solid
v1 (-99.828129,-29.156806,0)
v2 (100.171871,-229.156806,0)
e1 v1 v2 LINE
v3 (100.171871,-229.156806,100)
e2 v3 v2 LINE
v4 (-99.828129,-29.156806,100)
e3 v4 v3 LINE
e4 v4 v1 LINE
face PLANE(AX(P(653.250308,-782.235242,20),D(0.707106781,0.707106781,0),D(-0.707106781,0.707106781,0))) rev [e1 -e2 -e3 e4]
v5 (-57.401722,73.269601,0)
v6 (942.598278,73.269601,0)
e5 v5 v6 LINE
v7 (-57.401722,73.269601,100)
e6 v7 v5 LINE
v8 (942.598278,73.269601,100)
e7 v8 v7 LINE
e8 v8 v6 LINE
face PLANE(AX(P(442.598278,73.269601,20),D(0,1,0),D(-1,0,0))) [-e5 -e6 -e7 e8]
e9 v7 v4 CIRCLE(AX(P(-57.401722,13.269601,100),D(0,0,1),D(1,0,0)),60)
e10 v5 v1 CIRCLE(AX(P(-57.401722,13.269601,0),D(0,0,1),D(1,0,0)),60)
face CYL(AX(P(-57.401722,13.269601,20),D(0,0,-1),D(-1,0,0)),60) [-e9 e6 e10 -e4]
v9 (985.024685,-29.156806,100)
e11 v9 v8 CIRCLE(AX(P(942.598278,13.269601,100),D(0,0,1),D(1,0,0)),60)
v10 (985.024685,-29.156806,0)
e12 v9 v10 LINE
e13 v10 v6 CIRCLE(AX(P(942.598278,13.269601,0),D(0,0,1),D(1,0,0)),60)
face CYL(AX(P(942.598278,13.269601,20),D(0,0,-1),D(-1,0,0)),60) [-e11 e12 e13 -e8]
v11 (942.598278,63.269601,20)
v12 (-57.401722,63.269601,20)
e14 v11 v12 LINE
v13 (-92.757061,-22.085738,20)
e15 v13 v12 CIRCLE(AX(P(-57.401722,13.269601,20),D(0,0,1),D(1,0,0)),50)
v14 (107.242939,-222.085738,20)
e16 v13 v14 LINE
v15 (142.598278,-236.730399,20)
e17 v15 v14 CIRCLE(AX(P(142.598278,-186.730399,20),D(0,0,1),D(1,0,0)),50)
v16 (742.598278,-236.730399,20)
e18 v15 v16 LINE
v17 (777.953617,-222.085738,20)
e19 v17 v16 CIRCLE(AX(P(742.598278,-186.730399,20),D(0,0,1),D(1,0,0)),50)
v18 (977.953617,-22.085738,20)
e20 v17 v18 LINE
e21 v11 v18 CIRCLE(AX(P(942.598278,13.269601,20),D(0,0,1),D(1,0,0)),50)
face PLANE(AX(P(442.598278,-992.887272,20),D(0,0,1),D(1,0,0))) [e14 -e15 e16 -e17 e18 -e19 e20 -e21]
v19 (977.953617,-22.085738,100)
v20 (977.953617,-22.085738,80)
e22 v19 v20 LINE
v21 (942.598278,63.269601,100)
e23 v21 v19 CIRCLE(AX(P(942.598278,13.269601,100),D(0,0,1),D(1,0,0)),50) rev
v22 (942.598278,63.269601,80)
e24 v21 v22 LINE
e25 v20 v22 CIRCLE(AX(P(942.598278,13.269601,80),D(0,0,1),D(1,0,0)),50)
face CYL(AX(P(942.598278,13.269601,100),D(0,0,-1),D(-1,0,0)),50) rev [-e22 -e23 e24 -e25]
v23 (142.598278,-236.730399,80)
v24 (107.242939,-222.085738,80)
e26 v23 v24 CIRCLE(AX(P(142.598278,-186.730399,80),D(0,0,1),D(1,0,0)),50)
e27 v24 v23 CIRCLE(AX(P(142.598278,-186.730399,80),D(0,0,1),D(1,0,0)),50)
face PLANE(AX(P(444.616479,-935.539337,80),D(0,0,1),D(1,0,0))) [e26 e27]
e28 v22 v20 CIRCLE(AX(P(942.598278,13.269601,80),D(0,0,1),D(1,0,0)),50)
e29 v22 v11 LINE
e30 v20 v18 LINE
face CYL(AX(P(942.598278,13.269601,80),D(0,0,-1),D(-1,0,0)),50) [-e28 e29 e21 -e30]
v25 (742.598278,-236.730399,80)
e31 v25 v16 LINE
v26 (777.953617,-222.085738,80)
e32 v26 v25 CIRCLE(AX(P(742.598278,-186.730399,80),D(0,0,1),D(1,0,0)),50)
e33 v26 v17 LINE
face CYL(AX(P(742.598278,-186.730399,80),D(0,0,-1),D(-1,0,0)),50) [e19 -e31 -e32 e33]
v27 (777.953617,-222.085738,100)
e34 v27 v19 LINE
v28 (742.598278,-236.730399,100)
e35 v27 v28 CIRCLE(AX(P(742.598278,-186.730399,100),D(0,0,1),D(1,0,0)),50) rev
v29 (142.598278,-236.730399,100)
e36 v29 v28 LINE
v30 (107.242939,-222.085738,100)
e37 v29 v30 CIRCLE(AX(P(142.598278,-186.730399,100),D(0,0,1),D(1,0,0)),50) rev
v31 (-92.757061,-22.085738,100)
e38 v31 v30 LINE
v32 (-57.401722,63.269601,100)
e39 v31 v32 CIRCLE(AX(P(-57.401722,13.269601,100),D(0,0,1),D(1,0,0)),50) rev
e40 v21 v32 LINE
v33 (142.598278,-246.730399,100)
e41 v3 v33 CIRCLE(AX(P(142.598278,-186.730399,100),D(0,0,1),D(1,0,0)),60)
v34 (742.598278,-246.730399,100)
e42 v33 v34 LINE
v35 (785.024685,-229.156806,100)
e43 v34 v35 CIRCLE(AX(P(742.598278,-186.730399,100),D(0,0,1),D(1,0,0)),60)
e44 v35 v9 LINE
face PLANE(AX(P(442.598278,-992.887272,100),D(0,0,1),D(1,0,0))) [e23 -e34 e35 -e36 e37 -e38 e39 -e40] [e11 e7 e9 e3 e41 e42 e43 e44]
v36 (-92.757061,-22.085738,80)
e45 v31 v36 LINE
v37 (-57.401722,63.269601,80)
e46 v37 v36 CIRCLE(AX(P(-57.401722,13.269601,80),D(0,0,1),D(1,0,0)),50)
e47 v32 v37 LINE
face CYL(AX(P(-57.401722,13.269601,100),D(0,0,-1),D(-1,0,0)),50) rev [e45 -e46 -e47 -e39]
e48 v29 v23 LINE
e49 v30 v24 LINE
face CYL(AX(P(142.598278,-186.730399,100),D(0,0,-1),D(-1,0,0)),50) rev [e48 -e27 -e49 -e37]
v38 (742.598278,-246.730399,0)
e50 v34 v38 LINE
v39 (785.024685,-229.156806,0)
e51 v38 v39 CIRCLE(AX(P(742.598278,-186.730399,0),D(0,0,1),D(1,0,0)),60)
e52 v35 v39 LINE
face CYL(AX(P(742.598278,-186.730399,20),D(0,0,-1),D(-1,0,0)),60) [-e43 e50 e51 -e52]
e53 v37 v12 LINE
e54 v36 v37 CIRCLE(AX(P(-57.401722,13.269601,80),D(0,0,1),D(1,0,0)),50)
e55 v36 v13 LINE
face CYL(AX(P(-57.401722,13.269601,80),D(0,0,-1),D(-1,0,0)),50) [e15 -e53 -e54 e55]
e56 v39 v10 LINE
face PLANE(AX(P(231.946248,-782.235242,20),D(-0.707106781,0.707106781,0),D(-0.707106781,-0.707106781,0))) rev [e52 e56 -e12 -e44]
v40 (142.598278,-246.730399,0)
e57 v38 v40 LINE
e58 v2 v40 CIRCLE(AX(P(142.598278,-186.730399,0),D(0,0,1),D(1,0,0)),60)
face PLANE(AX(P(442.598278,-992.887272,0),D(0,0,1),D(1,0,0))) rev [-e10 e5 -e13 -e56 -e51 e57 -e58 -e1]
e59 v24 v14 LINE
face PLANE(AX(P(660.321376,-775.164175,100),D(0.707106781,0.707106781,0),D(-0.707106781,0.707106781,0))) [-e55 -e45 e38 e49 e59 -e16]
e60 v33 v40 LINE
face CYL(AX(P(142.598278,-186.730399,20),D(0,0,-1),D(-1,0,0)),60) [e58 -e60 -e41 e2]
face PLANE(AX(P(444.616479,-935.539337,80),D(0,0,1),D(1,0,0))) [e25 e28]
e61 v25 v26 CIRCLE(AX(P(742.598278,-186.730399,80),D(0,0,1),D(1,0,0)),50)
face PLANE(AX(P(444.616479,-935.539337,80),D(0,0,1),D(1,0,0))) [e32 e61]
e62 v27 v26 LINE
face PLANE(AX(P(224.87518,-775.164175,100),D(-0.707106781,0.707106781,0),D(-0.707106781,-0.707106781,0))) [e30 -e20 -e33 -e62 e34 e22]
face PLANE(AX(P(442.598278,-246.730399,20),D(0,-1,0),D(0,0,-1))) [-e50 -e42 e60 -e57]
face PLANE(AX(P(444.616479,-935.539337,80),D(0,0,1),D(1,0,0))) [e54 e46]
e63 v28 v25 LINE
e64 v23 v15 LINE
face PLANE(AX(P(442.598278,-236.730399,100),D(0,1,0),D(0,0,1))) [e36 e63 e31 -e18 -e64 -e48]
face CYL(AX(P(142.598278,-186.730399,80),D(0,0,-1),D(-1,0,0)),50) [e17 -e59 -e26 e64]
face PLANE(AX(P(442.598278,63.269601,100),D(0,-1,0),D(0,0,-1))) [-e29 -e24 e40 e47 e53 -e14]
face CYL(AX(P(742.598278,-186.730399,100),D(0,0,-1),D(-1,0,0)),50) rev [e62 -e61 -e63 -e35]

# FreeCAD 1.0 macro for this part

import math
import FreeCAD as App
import Part
import Sketcher
Q = App.Units.Quantity

doc = App.newDocument("Part")
params = doc.addObject("Spreadsheet::Sheet", "Params")
for row, (alias, value) in enumerate([
    ("sketch1_radius", "60 mm"),
    ("sketch1_width", "1000 mm"),
    ("sketch1_width2", "600 mm"),
    ("pad1_length", "20 mm"),
    ("sketch2_diameter", "100 mm"),
    ("pad2_length", "60 mm"),
    ("sketch3_radius", "60 mm"),
    ("sketch3_radius2", "50 mm"),
    ("sketch3_width", "1000 mm"),
    ("sketch3_width2", "600 mm"),
    ("pad3_length", "80 mm"),
], start=1):
    params.set(f"A{row}", alias)
    params.set(f"B{row}", "=" + value)
    params.setAlias(f"B{row}", alias)

body = doc.addObject("PartDesign::Body", "Body")

# Sketch on XY plane
sketch1 = body.newObject("Sketcher::SketchObject", "Sketch")
sketch1.AttachmentSupport = (doc.getObject("XY_Plane"), [""])
sketch1.MapMode = "FlatFace"
sketch1.addGeometry([
    Part.LineSegment(App.Vector(943, 73, 0), App.Vector(-57, 73, 0)),  # 0
    Part.ArcOfCircle(Part.Circle(App.Vector(-57, 13, 0), App.Vector(0, 0, 1), 60), math.radians(90), math.radians(225)),  # 1
    Part.LineSegment(App.Vector(-100, -29, 0), App.Vector(100, -229, 0)),  # 2
    Part.ArcOfCircle(Part.Circle(App.Vector(143, -187, 0), App.Vector(0, 0, 1), 60), math.radians(-135), math.radians(-90)),  # 3
    Part.LineSegment(App.Vector(143, -247, 0), App.Vector(743, -247, 0)),  # 4
    Part.ArcOfCircle(Part.Circle(App.Vector(743, -187, 0), App.Vector(0, 0, 1), 60), math.radians(-90), math.radians(-45)),  # 5
    Part.LineSegment(App.Vector(785, -229, 0), App.Vector(827, -187, 0)),  # 6
    Part.LineSegment(App.Vector(827, -187, 0), App.Vector(943, -72, 0)),  # 7
    Part.LineSegment(App.Vector(943, -72, 0), App.Vector(985, -29, 0)),  # 8
    Part.ArcOfCircle(Part.Circle(App.Vector(943, 13, 0), App.Vector(0, 0, 1), 60), math.radians(-45), math.radians(0)),  # 9
    Part.ArcOfCircle(Part.Circle(App.Vector(943, 13, 0), App.Vector(0, 0, 1), 60), math.radians(0), math.radians(90)),  # 10
], False)
sketch1.addConstraint([
    Sketcher.Constraint("Tangent", 0, 2, 1, 1),
    Sketcher.Constraint("Tangent", 1, 2, 2, 1),
    Sketcher.Constraint("Tangent", 2, 2, 3, 1),
    Sketcher.Constraint("Tangent", 3, 2, 4, 1),
    Sketcher.Constraint("Tangent", 4, 2, 5, 1),
    Sketcher.Constraint("Tangent", 5, 2, 6, 1),
    Sketcher.Constraint("Coincident", 6, 2, 7, 1),
    Sketcher.Constraint("Coincident", 7, 2, 8, 1),
    Sketcher.Constraint("Tangent", 8, 2, 9, 1),
    Sketcher.Constraint("Tangent", 9, 2, 10, 1),
    Sketcher.Constraint("Tangent", 10, 2, 0, 1),
    Sketcher.Constraint("Horizontal", 0),
    Sketcher.Constraint("Horizontal", 4),
    Sketcher.Constraint("Equal", 1, 3),
    Sketcher.Constraint("Equal", 3, 5),
    Sketcher.Constraint("Equal", 5, 9),
    Sketcher.Constraint("Equal", 9, 10),
    Sketcher.Constraint("Perpendicular", 2, 6),
    Sketcher.Constraint("Parallel", 6, 7),
    Sketcher.Constraint("Parallel", 7, 8),
    Sketcher.Constraint("Horizontal", 2, 2, 5, 2),
    Sketcher.Constraint("Horizontal", 5, 3, 6, 2),
    Sketcher.Constraint("Horizontal", 10, 3, 9, 2),
    Sketcher.Constraint("Vertical", 10, 3, 7, 2),
    Sketcher.Constraint("Radius", 1, Q("60 mm")),
    Sketcher.Constraint("DistanceX", 0, 2, 0, 1, Q("1000 mm")),
    Sketcher.Constraint("DistanceX", 4, 1, 4, 2, Q("600 mm")),
    Sketcher.Constraint("DistanceY", -1, 1, 1, 3, Q("13.269601 mm")),
    Sketcher.Constraint("DistanceX", 1, 3, -1, 1, Q("57.401722 mm")),
])
sketch1.setExpression("Constraints[24]", "Params.sketch1_radius")
sketch1.setExpression("Constraints[25]", "Params.sketch1_width")
sketch1.setExpression("Constraints[26]", "Params.sketch1_width2")
pad1 = body.newObject("PartDesign::Pad", "Pad")
pad1.Profile = sketch1
pad1.setExpression("Length", "Params.pad1_length")

# Sketch on XY plane
sketch2 = body.newObject("Sketcher::SketchObject", "Sketch001")
sketch2.AttachmentSupport = (doc.getObject("XY_Plane"), [""])
sketch2.MapMode = "FlatFace"
sketch2.AttachmentOffset = App.Placement(App.Vector(0, 0, 20), App.Rotation())
sketch2.addGeometry([
    Part.Circle(App.Vector(-57, 13, 0), App.Vector(0, 0, 1), 50),
    Part.Circle(App.Vector(143, -187, 0), App.Vector(0, 0, 1), 50),
    Part.Circle(App.Vector(743, -187, 0), App.Vector(0, 0, 1), 50),
    Part.Circle(App.Vector(943, 13, 0), App.Vector(0, 0, 1), 50),
], False)
sketch2.addConstraint([
    Sketcher.Constraint("Equal", 0, 1),
    Sketcher.Constraint("Equal", 1, 2),
    Sketcher.Constraint("Equal", 2, 3),
    Sketcher.Constraint("Horizontal", 1, 3, 2, 3),
    Sketcher.Constraint("Horizontal", 0, 3, 3, 3),
    Sketcher.Constraint("Diameter", 0, Q("100 mm")),
    Sketcher.Constraint("DistanceX", 0, 3, 1, 3, Q("200 mm")),
    Sketcher.Constraint("DistanceY", 1, 3, 0, 3, Q("200 mm")),
    Sketcher.Constraint("DistanceX", 1, 3, 2, 3, Q("600 mm")),
    Sketcher.Constraint("DistanceX", 2, 3, 3, 3, Q("200 mm")),
    Sketcher.Constraint("DistanceY", -1, 1, 0, 3, Q("13.269601 mm")),
    Sketcher.Constraint("DistanceX", 0, 3, -1, 1, Q("57.401722 mm")),
])
sketch2.setExpression("Constraints[5]", "Params.sketch2_diameter")
pad2 = body.newObject("PartDesign::Pad", "Pad001")
pad2.Profile = sketch2
pad2.setExpression("Length", "Params.pad2_length")

# Sketch on XY plane
sketch3 = body.newObject("Sketcher::SketchObject", "Sketch002")
sketch3.AttachmentSupport = (doc.getObject("XY_Plane"), [""])
sketch3.MapMode = "FlatFace"
sketch3.AttachmentOffset = App.Placement(App.Vector(0, 0, 20), App.Rotation())
sketch3.addGeometry([
    Part.LineSegment(App.Vector(943, 73, 0), App.Vector(-57, 73, 0)),  # 0
    Part.ArcOfCircle(Part.Circle(App.Vector(-57, 13, 0), App.Vector(0, 0, 1), 60), math.radians(90), math.radians(225)),  # 1
    Part.LineSegment(App.Vector(-100, -29, 0), App.Vector(100, -229, 0)),  # 2
    Part.ArcOfCircle(Part.Circle(App.Vector(143, -187, 0), App.Vector(0, 0, 1), 60), math.radians(-135), math.radians(-90)),  # 3
    Part.LineSegment(App.Vector(143, -247, 0), App.Vector(743, -247, 0)),  # 4
    Part.ArcOfCircle(Part.Circle(App.Vector(743, -187, 0), App.Vector(0, 0, 1), 60), math.radians(-90), math.radians(-45)),  # 5
    Part.LineSegment(App.Vector(785, -229, 0), App.Vector(985, -29, 0)),  # 6
    Part.ArcOfCircle(Part.Circle(App.Vector(943, 13, 0), App.Vector(0, 0, 1), 60), math.radians(-45), math.radians(0)),  # 7
    Part.ArcOfCircle(Part.Circle(App.Vector(943, 13, 0), App.Vector(0, 0, 1), 60), math.radians(0), math.radians(90)),  # 8
    Part.ArcOfCircle(Part.Circle(App.Vector(743, -187, 0), App.Vector(0, 0, 1), 50), math.radians(-90), math.radians(-45)),  # 9
    Part.LineSegment(App.Vector(743, -237, 0), App.Vector(143, -237, 0)),  # 10
    Part.ArcOfCircle(Part.Circle(App.Vector(143, -187, 0), App.Vector(0, 0, 1), 50), math.radians(-135), math.radians(-90)),  # 11
    Part.LineSegment(App.Vector(107, -222, 0), App.Vector(84, -199, 0)),  # 12
    Part.LineSegment(App.Vector(84, -199, 0), App.Vector(-69, -46, 0)),  # 13
    Part.LineSegment(App.Vector(-69, -46, 0), App.Vector(-93, -22, 0)),  # 14
    Part.ArcOfCircle(Part.Circle(App.Vector(-57, 13, 0), App.Vector(0, 0, 1), 50), math.radians(90), math.radians(225)),  # 15
    Part.LineSegment(App.Vector(-57, 63, 0), App.Vector(943, 63, 0)),  # 16
    Part.ArcOfCircle(Part.Circle(App.Vector(943, 13, 0), App.Vector(0, 0, 1), 50), math.radians(0), math.radians(90)),  # 17
    Part.ArcOfCircle(Part.Circle(App.Vector(943, 13, 0), App.Vector(0, 0, 1), 50), math.radians(-45), math.radians(0)),  # 18
    Part.LineSegment(App.Vector(978, -22, 0), App.Vector(778, -222, 0)),  # 19
], False)
sketch3.addConstraint([
    Sketcher.Constraint("Tangent", 0, 2, 1, 1),
    Sketcher.Constraint("Tangent", 1, 2, 2, 1),
    Sketcher.Constraint("Tangent", 2, 2, 3, 1),
    Sketcher.Constraint("Tangent", 3, 2, 4, 1),
    Sketcher.Constraint("Tangent", 4, 2, 5, 1),
    Sketcher.Constraint("Tangent", 5, 2, 6, 1),
    Sketcher.Constraint("Tangent", 6, 2, 7, 1),
    Sketcher.Constraint("Tangent", 7, 2, 8, 1),
    Sketcher.Constraint("Tangent", 8, 2, 0, 1),
    Sketcher.Constraint("Tangent", 9, 1, 10, 1),
    Sketcher.Constraint("Tangent", 10, 2, 11, 2),
    Sketcher.Constraint("Tangent", 11, 1, 12, 1),
    Sketcher.Constraint("Coincident", 12, 2, 13, 1),
    Sketcher.Constraint("Coincident", 13, 2, 14, 1),
    Sketcher.Constraint("Tangent", 14, 2, 15, 2),
    Sketcher.Constraint("Tangent", 15, 1, 16, 1),
    Sketcher.Constraint("Tangent", 16, 2, 17, 2),
    Sketcher.Constraint("Tangent", 17, 1, 18, 2),
    Sketcher.Constraint("Tangent", 18, 1, 19, 1),
    Sketcher.Constraint("Tangent", 19, 2, 9, 2),
    Sketcher.Constraint("Horizontal", 0),
    Sketcher.Constraint("Horizontal", 4),
    Sketcher.Constraint("Horizontal", 10),
    Sketcher.Constraint("Horizontal", 16),
    Sketcher.Constraint("Coincident", 9, 3, 5, 3),
    Sketcher.Constraint("Coincident", 11, 3, 3, 3),
    Sketcher.Constraint("Coincident", 15, 3, 1, 3),
    Sketcher.Constraint("Coincident", 17, 3, 7, 3),
    Sketcher.Constraint("Equal", 1, 3),
    Sketcher.Constraint("Equal", 3, 5),
    Sketcher.Constraint("Equal", 5, 7),
    Sketcher.Constraint("Equal", 7, 8),
    Sketcher.Constraint("Equal", 11, 15),
    Sketcher.Constraint("Equal", 17, 18),
    Sketcher.Constraint("Perpendicular", 2, 6),
    Sketcher.Constraint("Perpendicular", 6, 12),
    Sketcher.Constraint("Parallel", 12, 13),
    Sketcher.Constraint("Horizontal", 18, 3, 7, 2),
    Sketcher.Constraint("Horizontal", 7, 2, 17, 1),
    Sketcher.Constraint("Equal", 2, 6),
    Sketcher.Constraint("Equal", 12, 14),
    Sketcher.Constraint("Radius", 1, Q("60 mm")),
    Sketcher.Constraint("Radius", 9, Q("50 mm")),
    Sketcher.Constraint("DistanceX", 0, 2, 0, 1, Q("1000 mm")),
    Sketcher.Constraint("DistanceX", 4, 1, 4, 2, Q("600 mm")),
    Sketcher.Constraint("DistanceY", -1, 1, 1, 3, Q("13.269601 mm")),
    Sketcher.Constraint("DistanceX", 1, 3, -1, 1, Q("57.401722 mm")),
    Sketcher.Constraint("DistanceX", -1, 1, 12, 2, Q("83.79086 mm")),
])
sketch3.setExpression("Constraints[41]", "Params.sketch3_radius")
sketch3.setExpression("Constraints[42]", "Params.sketch3_radius2")
sketch3.setExpression("Constraints[43]", "Params.sketch3_width")
sketch3.setExpression("Constraints[44]", "Params.sketch3_width2")
pad3 = body.newObject("PartDesign::Pad", "Pad002")
pad3.Profile = sketch3
pad3.setExpression("Length", "Params.pad3_length")

doc.recompute()
